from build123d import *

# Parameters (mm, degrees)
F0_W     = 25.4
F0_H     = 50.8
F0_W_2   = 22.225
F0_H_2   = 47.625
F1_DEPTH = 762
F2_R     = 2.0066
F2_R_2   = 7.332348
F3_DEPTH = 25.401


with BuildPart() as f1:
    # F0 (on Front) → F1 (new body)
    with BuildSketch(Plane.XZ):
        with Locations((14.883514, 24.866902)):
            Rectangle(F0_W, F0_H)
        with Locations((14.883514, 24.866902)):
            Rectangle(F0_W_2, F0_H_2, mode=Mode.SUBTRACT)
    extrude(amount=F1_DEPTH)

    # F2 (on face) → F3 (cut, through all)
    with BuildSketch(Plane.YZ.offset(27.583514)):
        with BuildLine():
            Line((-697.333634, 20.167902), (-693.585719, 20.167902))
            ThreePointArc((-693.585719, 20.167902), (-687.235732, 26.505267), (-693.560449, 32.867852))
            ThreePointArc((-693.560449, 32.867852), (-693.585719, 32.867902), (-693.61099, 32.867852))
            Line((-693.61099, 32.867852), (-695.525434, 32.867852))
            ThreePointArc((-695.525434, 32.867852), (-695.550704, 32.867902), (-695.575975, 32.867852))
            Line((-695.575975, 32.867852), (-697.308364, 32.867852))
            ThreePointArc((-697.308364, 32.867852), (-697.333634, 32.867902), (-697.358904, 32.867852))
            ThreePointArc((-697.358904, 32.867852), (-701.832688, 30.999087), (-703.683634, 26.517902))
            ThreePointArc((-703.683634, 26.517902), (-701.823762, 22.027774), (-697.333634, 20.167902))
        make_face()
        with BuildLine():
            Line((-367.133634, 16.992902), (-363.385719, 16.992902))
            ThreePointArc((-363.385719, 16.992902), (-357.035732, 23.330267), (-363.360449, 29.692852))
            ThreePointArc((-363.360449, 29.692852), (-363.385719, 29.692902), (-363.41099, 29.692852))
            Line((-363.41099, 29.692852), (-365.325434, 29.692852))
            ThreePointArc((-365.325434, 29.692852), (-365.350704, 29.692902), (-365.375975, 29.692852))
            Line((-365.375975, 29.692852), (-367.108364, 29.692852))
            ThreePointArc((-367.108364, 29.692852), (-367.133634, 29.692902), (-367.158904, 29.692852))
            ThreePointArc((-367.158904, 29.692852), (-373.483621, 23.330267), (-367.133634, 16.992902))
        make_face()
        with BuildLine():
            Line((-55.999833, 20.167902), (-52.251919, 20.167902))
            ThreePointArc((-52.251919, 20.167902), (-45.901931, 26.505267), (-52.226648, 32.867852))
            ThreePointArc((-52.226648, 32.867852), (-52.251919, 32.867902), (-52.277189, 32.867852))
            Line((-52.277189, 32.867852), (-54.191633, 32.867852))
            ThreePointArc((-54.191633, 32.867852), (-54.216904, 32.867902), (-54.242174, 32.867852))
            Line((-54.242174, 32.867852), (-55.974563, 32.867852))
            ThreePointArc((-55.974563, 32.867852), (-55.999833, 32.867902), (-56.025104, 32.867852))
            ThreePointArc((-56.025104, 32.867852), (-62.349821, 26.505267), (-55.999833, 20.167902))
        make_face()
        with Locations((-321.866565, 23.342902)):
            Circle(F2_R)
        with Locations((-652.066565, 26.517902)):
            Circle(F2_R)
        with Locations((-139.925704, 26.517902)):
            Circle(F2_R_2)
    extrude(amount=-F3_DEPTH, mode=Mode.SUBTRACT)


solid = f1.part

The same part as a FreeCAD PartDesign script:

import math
import FreeCAD as App
import Part
import Sketcher
Q = App.Units.Quantity

doc = App.newDocument("Part")
body = doc.addObject("PartDesign::Body", "Body")

# Sketch on XZ plane
sketch1 = body.newObject("Sketcher::SketchObject", "Sketch")
sketch1.AttachmentSupport = (doc.getObject("XZ_Plane"), [""])
sketch1.MapMode = "FlatFace"
sketch1.addGeometry([
    Part.LineSegment(App.Vector(2, 50, 0), App.Vector(2, -1, 0)),  # 0
    Part.LineSegment(App.Vector(2, -1, 0), App.Vector(28, -1, 0)),  # 1
    Part.LineSegment(App.Vector(28, -1, 0), App.Vector(28, 50, 0)),  # 2
    Part.LineSegment(App.Vector(28, 50, 0), App.Vector(2, 50, 0)),  # 3
    Part.LineSegment(App.Vector(26, 1, 0), App.Vector(4, 1, 0)),  # 4
    Part.LineSegment(App.Vector(4, 1, 0), App.Vector(4, 49, 0)),  # 5
    Part.LineSegment(App.Vector(4, 49, 0), App.Vector(26, 49, 0)),  # 6
    Part.LineSegment(App.Vector(26, 49, 0), App.Vector(26, 1, 0)),  # 7
], False)
sketch1.addConstraint([
    Sketcher.Constraint("Coincident", 0, 2, 1, 1),
    Sketcher.Constraint("Coincident", 1, 2, 2, 1),
    Sketcher.Constraint("Coincident", 2, 2, 3, 1),
    Sketcher.Constraint("Coincident", 3, 2, 0, 1),
    Sketcher.Constraint("Coincident", 4, 2, 5, 1),
    Sketcher.Constraint("Coincident", 5, 2, 6, 1),
    Sketcher.Constraint("Coincident", 6, 2, 7, 1),
    Sketcher.Constraint("Coincident", 7, 2, 4, 1),
    Sketcher.Constraint("Vertical", 0),
    Sketcher.Constraint("Horizontal", 1),
    Sketcher.Constraint("Vertical", 2),
    Sketcher.Constraint("Horizontal", 3),
    Sketcher.Constraint("Horizontal", 4),
    Sketcher.Constraint("Vertical", 5),
    Sketcher.Constraint("Horizontal", 6),
    Sketcher.Constraint("Vertical", 7),
    Sketcher.Constraint("DistanceX", 1, 1, 1, 2, Q("1 in")),
    Sketcher.Constraint("DistanceY", 0, 2, 0, 1, Q("2 in")),
    Sketcher.Constraint("DistanceX", 4, 2, 4, 1, Q("0.875 in")),
    Sketcher.Constraint("DistanceY", 5, 1, 5, 2, Q("1.875 in")),
    Sketcher.Constraint("DistanceX", 0, 2, 4, 2, Q("0.0625 in")),
    Sketcher.Constraint("DistanceY", 0, 2, 4, 2, Q("0.0625 in")),
    Sketcher.Constraint("DistanceX", -1, 1, 0, 2, Q("2.183514 mm")),
    Sketcher.Constraint("DistanceY", 0, 2, -1, 1, Q("0.533098 mm")),
])
pad1 = body.newObject("PartDesign::Pad", "Pad")
pad1.Profile = sketch1
pad1.Length = Q("30 in")

# Sketch on YZ plane
sketch2 = body.newObject("Sketcher::SketchObject", "Sketch001")
sketch2.AttachmentSupport = (doc.getObject("YZ_Plane"), [""])
sketch2.MapMode = "FlatFace"
sketch2.AttachmentOffset = App.Placement(App.Vector(0, 0, 27.583514), App.Rotation())
sketch2.addGeometry([
    Part.LineSegment(App.Vector(-697.333634, 20.167902, 0), App.Vector(-693.585719, 20.167902, 0)),  # 0
    Part.ArcOfCircle(Part.Circle(App.Vector(-693.58572, 26.517902, 0), App.Vector(0, 0, 1), 6.35), math.radians(-89.999995), math.radians(89.771984)),  # 1
    Part.ArcOfCircle(Part.Circle(App.Vector(-693.585719, 26.481895, 0), App.Vector(0, 0, 1), 6.386007), math.radians(89.77327), math.radians(90.22673)),  # 2
    Part.LineSegment(App.Vector(-693.61099, 32.867852, 0), App.Vector(-695.525434, 32.867852, 0)),  # 3
    Part.ArcOfCircle(Part.Circle(App.Vector(-695.550705, 26.481895, 0), App.Vector(0, 0, 1), 6.386007), math.radians(89.77327), math.radians(90.22673)),  # 4
    Part.LineSegment(App.Vector(-695.575975, 32.867852, 0), App.Vector(-697.308364, 32.867852, 0)),  # 5
    Part.ArcOfCircle(Part.Circle(App.Vector(-697.333634, 26.482148, 0), App.Vector(0, 0, 1), 6.385754), math.radians(89.773266), math.radians(90.226734)),  # 6
    Part.ArcOfCircle(Part.Circle(App.Vector(-697.333635, 26.517903, 0), App.Vector(0, 0, 1), 6.349999), math.radians(90.228005), math.radians(180.000008)),  # 7
    Part.ArcOfCircle(Part.Circle(App.Vector(-697.333634, 26.517902, 0), App.Vector(0, 0, 1), 6.35), math.radians(-179.999998), math.radians(-90.000002)),  # 8
    Part.LineSegment(App.Vector(-367.133634, 16.992902, 0), App.Vector(-363.385719, 16.992902, 0)),  # 9
    Part.ArcOfCircle(Part.Circle(App.Vector(-363.38572, 23.342902, 0), App.Vector(0, 0, 1), 6.35), math.radians(-89.999995), math.radians(89.771984)),  # 10
    Part.ArcOfCircle(Part.Circle(App.Vector(-363.385719, 23.306895, 0), App.Vector(0, 0, 1), 6.386007), math.radians(89.77327), math.radians(90.22673)),  # 11
    Part.LineSegment(App.Vector(-363.41099, 29.692852, 0), App.Vector(-365.325434, 29.692852, 0)),  # 12
    Part.ArcOfCircle(Part.Circle(App.Vector(-365.350705, 23.306895, 0), App.Vector(0, 0, 1), 6.386007), math.radians(89.77327), math.radians(90.22673)),  # 13
    Part.LineSegment(App.Vector(-365.375975, 29.692852, 0), App.Vector(-367.108364, 29.692852, 0)),  # 14
    Part.ArcOfCircle(Part.Circle(App.Vector(-367.133634, 23.307148, 0), App.Vector(0, 0, 1), 6.385754), math.radians(89.773266), math.radians(90.226734)),  # 15
    Part.ArcOfCircle(Part.Circle(App.Vector(-367.133633, 23.342902, 0), App.Vector(0, 0, 1), 6.35), math.radians(90.228016), math.radians(269.999995)),  # 16
    Part.LineSegment(App.Vector(-55.999833, 20.167902, 0), App.Vector(-52.251919, 20.167902, 0)),  # 17
    Part.ArcOfCircle(Part.Circle(App.Vector(-52.251919, 26.517902, 0), App.Vector(0, 0, 1), 6.35), math.radians(-90.000004), math.radians(89.771984)),  # 18
    Part.ArcOfCircle(Part.Circle(App.Vector(-52.251919, 26.481895, 0), App.Vector(0, 0, 1), 6.386007), math.radians(89.77327), math.radians(90.22673)),  # 19
    Part.LineSegment(App.Vector(-52.277189, 32.867852, 0), App.Vector(-54.191633, 32.867852, 0)),  # 20
    Part.ArcOfCircle(Part.Circle(App.Vector(-54.216904, 26.481895, 0), App.Vector(0, 0, 1), 6.386007), math.radians(89.77327), math.radians(90.22673)),  # 21
    Part.LineSegment(App.Vector(-54.242174, 32.867852, 0), App.Vector(-55.974563, 32.867852, 0)),  # 22
    Part.ArcOfCircle(Part.Circle(App.Vector(-55.999834, 26.481895, 0), App.Vector(0, 0, 1), 6.386007), math.radians(89.77327), math.radians(90.22673)),  # 23
    Part.ArcOfCircle(Part.Circle(App.Vector(-55.999833, 26.517902, 0), App.Vector(0, 0, 1), 6.35), math.radians(90.228016), math.radians(270.000004)),  # 24
    Part.Circle(App.Vector(-321.866565, 23.342902, 0), App.Vector(0, 0, 1), 2.0066),  # 25
    Part.Circle(App.Vector(-652.066565, 26.517902, 0), App.Vector(0, 0, 1), 2.0066),  # 26
    Part.Circle(App.Vector(-139.925704, 26.517902, 0), App.Vector(0, 0, 1), 7.332348),  # 27
], False)
sketch2.addConstraint([
    Sketcher.Constraint("Tangent", 0, 2, 1, 1),
    Sketcher.Constraint("Coincident", 1, 2, 2, 1),
    Sketcher.Constraint("Coincident", 2, 2, 3, 1),
    Sketcher.Constraint("Coincident", 3, 2, 4, 1),
    Sketcher.Constraint("Coincident", 4, 2, 5, 1),
    Sketcher.Constraint("Coincident", 5, 2, 6, 1),
    Sketcher.Constraint("Coincident", 6, 2, 7, 1),
    Sketcher.Constraint("Tangent", 7, 2, 8, 1),
    Sketcher.Constraint("Tangent", 8, 2, 0, 1),
    Sketcher.Constraint("Tangent", 9, 2, 10, 1),
    Sketcher.Constraint("Coincident", 10, 2, 11, 1),
    Sketcher.Constraint("Coincident", 11, 2, 12, 1),
    Sketcher.Constraint("Coincident", 12, 2, 13, 1),
    Sketcher.Constraint("Coincident", 13, 2, 14, 1),
    Sketcher.Constraint("Coincident", 14, 2, 15, 1),
    Sketcher.Constraint("Coincident", 15, 2, 16, 1),
    Sketcher.Constraint("Tangent", 16, 2, 9, 1),
    Sketcher.Constraint("Tangent", 17, 2, 18, 1),
    Sketcher.Constraint("Coincident", 18, 2, 19, 1),
    Sketcher.Constraint("Coincident", 19, 2, 20, 1),
    Sketcher.Constraint("Coincident", 20, 2, 21, 1),
    Sketcher.Constraint("Coincident", 21, 2, 22, 1),
    Sketcher.Constraint("Coincident", 22, 2, 23, 1),
    Sketcher.Constraint("Coincident", 23, 2, 24, 1),
    Sketcher.Constraint("Tangent", 24, 2, 17, 1),
    Sketcher.Constraint("Horizontal", 0),
    Sketcher.Constraint("Horizontal", 3),
    Sketcher.Constraint("Horizontal", 5),
    Sketcher.Constraint("Horizontal", 9),
    Sketcher.Constraint("Horizontal", 12),
    Sketcher.Constraint("Horizontal", 14),
    Sketcher.Constraint("Horizontal", 17),
    Sketcher.Constraint("Horizontal", 20),
    Sketcher.Constraint("Horizontal", 22),
    Sketcher.Constraint("Equal", 2, 4),
    Sketcher.Constraint("Equal", 1, 7),
    Sketcher.Constraint("Equal", 7, 8),
    Sketcher.Constraint("Equal", 8, 10),
    Sketcher.Constraint("Equal", 4, 11),
    Sketcher.Constraint("Equal", 11, 13),
    Sketcher.Constraint("Equal", 6, 15),
    Sketcher.Constraint("Equal", 10, 16),
    Sketcher.Constraint("Equal", 16, 18),
    Sketcher.Constraint("Equal", 13, 19),
    Sketcher.Constraint("Equal", 19, 21),
    Sketcher.Constraint("Equal", 21, 23),
    Sketcher.Constraint("Equal", 18, 24),
    Sketcher.Constraint("Equal", 25, 26),
    Sketcher.Constraint("Horizontal", 2, 3, 4, 3),
    Sketcher.Constraint("Horizontal", 11, 3, 13, 3),
    Sketcher.Constraint("Horizontal", 8, 3, 18, 3),
    Sketcher.Constraint("Horizontal", 4, 3, 19, 3),
    Sketcher.Constraint("Horizontal", 19, 3, 21, 3),
    Sketcher.Constraint("Horizontal", 21, 3, 23, 3),
    Sketcher.Constraint("Horizontal", 16, 3, 25, 3),
    Sketcher.Constraint("Horizontal", 24, 3, 26, 3),
    Sketcher.Constraint("Horizontal", 26, 3, 27, 3),
    Sketcher.Constraint("Horizontal", 1, 2, 2, 2),
    Sketcher.Constraint("Horizontal", 3, 2, 4, 2),
    Sketcher.Constraint("Horizontal", 5, 2, 6, 2),
    Sketcher.Constraint("Horizontal", 27, 3, 7, 2),
    Sketcher.Constraint("Horizontal", 10, 2, 11, 2),
    Sketcher.Constraint("Horizontal", 12, 2, 13, 2),
    Sketcher.Constraint("Horizontal", 14, 2, 15, 2),
    Sketcher.Constraint("Horizontal", 6, 2, 18, 2),
    Sketcher.Constraint("Horizontal", 18, 2, 19, 2),
    Sketcher.Constraint("Horizontal", 20, 2, 21, 2),
    Sketcher.Constraint("Horizontal", 22, 2, 23, 2),
    Sketcher.Constraint("Vertical", 1, 3, 2, 3),
    Sketcher.Constraint("Vertical", 6, 3, 7, 3),
    Sketcher.Constraint("Vertical", 10, 3, 11, 3),
    Sketcher.Constraint("Vertical", 15, 3, 16, 3),
    Sketcher.Constraint("Equal", 0, 9),
    Sketcher.Constraint("Equal", 3, 12),
    Sketcher.Constraint("Equal", 5, 14),
    Sketcher.Constraint("Equal", 9, 17),
    Sketcher.Constraint("Equal", 12, 20),
    Sketcher.Constraint("Radius", 1, Q("0.25 in")),
    Sketcher.Constraint("Diameter", 25, Q("0.158 in")),
    Sketcher.Constraint("DistanceX", 2, 3, 10, 3, Q("13 in")),
    Sketcher.Constraint("DistanceY", 10, 3, 1, 3, Q("0.125 in")),
    Sketcher.Constraint("Diameter", 27, Q("14.664696 mm")),
    Sketcher.Constraint("Radius", 2, Q("6.386007 mm")),
    Sketcher.Constraint("Radius", 6, Q("6.385754 mm")),
    Sketcher.Constraint("DistanceX", 5, 2, 5, 1, Q("1.732389 mm")),
    Sketcher.Constraint("DistanceY", -1, 1, 25, 3, Q("23.342902 mm")),
    Sketcher.Constraint("DistanceX", 10, 3, 18, 3, Q("311.133801 mm")),
    Sketcher.Constraint("DistanceX", 27, 3, 21, 3, Q("85.7088 mm")),
    Sketcher.Constraint("DistanceX", 7, 3, 3, 2, Q("1.808201 mm")),
    Sketcher.Constraint("DistanceX", 0, 1, 0, 2, Q("3.747915 mm")),
    Sketcher.Constraint("DistanceX", 1, 3, -1, 1, Q("693.58572 mm")),
    Sketcher.Constraint("DistanceX", 13, 3, 25, 3, Q("43.48414 mm")),
    Sketcher.Constraint("DistanceX", 4, 3, 26, 3, Q("43.48414 mm")),
])
pocket1 = body.newObject("PartDesign::Pocket", "Pocket")
pocket1.Profile = sketch2
pocket1.Type = "ThroughAll"

doc.recompute()
